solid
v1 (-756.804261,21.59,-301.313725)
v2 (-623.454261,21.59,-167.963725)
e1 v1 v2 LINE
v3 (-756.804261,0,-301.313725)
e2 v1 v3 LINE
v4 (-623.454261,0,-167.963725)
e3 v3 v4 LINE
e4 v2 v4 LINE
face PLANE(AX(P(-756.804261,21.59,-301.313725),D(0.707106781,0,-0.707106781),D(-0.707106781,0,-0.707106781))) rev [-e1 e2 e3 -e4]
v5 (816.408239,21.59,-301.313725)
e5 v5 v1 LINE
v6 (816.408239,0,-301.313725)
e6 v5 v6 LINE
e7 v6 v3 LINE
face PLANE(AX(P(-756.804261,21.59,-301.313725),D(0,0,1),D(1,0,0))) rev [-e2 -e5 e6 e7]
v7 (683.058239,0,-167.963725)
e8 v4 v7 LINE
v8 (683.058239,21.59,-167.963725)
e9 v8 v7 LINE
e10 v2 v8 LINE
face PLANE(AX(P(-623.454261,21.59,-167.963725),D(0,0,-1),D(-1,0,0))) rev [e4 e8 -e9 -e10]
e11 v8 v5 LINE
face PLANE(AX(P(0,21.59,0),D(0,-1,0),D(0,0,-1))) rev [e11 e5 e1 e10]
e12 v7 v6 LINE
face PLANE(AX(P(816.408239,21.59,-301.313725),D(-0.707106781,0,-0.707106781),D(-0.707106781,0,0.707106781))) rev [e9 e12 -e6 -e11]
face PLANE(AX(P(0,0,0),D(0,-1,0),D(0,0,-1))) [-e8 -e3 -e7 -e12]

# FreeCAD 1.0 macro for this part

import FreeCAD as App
import Part
import Sketcher
Q = App.Units.Quantity


def add_polygon(sketch, points):
    """Adds a closed chain of lines whose ends are joined by coincident constraints."""
    first, n = sketch.GeometryCount, len(points)
    for a, b in zip(points, points[1:] + points[:1]):
        sketch.addGeometry(Part.LineSegment(App.Vector(*a, 0), App.Vector(*b, 0)), False)
    for i in range(n):
        sketch.addConstraint(Sketcher.Constraint("Coincident", first + i, 2, first + (i + 1) % n, 1))

doc = App.newDocument("Part")
params = doc.addObject("Spreadsheet::Sheet", "Params")
for row, (alias, value) in enumerate([
    ("sketch1_width", "61.9375 in"),
    ("sketch1_width2", "51.4375 in"),
    ("pad1_length", "0.85 in"),
], start=1):
    params.set(f"A{row}", alias)
    params.set(f"B{row}", "=" + value)
    params.setAlias(f"B{row}", alias)

body = doc.addObject("PartDesign::Body", "Body")

# Sketch on XZ plane
sketch1 = body.newObject("Sketcher::SketchObject", "Sketch")
sketch1.AttachmentSupport = (doc.getObject("XZ_Plane"), [""])
sketch1.MapMode = "FlatFace"
add_polygon(sketch1, [(816, -301), (-757, -301), (-623, -168), (683, -168)])  # lines 0-3
sketch1.addConstraint([
    Sketcher.Constraint("Horizontal", 0),
    Sketcher.Constraint("Horizontal", 2),
    Sketcher.Constraint("Perpendicular", 1, 3),
    Sketcher.Constraint("Equal", 1, 3),
    Sketcher.Constraint("DistanceX", 0, 2, 0, 1, Q("61.9375 in")),
    Sketcher.Constraint("DistanceX", 2, 1, 2, 2, Q("51.4375 in")),
    Sketcher.Constraint("DistanceX", 0, 2, -1, 1, Q("756.804261 mm")),
    Sketcher.Constraint("DistanceY", 0, 2, -1, 1, Q("301.313725 mm")),
])
sketch1.setExpression("Constraints[8]", "Params.sketch1_width")
sketch1.setExpression("Constraints[9]", "Params.sketch1_width2")
pad1 = body.newObject("PartDesign::Pad", "Pad")
pad1.Profile = sketch1
pad1.setExpression("Length", "Params.pad1_length")
pad1.Reversed = True

doc.recompute()
